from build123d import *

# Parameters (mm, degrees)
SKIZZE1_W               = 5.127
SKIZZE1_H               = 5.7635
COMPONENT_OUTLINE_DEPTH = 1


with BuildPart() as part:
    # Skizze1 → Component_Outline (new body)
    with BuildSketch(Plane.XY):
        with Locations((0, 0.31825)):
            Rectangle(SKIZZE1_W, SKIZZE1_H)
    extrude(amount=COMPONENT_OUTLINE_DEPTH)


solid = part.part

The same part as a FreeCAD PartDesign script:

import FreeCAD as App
import Part
import Sketcher
from FreeCAD import Vector

doc = App.newDocument("Part")
params = doc.addObject("Spreadsheet::Sheet", "Params")
for row, (alias, value) in enumerate([
    ("pad1_length", "1 mm"),
], start=1):
    params.set(f"A{row}", alias)
    params.set(f"B{row}", "=" + value)
    params.setAlias(f"B{row}", alias)

body = doc.addObject("PartDesign::Body", "Body")

sketch1 = body.newObject("Sketcher::SketchObject", "Sketch")
sketch1.AttachmentSupport = (doc.getObject("XY_Plane"), [""])
sketch1.MapMode = "FlatFace"
sketch1.addGeometry(Part.LineSegment(Vector(-2.5635, 3.2, 0), Vector(-2.5635, -2.5635, 0)), False)
sketch1.addGeometry(Part.LineSegment(Vector(-2.5635, -2.5635, 0), Vector(2.5635, -2.5635, 0)), False)
sketch1.addGeometry(Part.LineSegment(Vector(2.5635, -2.5635, 0), Vector(2.5635, 3.2, 0)), False)
sketch1.addGeometry(Part.LineSegment(Vector(2.5635, 3.2, 0), Vector(-2.5635, 3.2, 0)), False)
sketch1.addConstraint(Sketcher.Constraint("Coincident", 0, 2, 1, 1))
sketch1.addConstraint(Sketcher.Constraint("Coincident", 1, 2, 2, 1))
sketch1.addConstraint(Sketcher.Constraint("Coincident", 2, 2, 3, 1))
sketch1.addConstraint(Sketcher.Constraint("Coincident", 3, 2, 0, 1))
sketch1.addConstraint(Sketcher.Constraint("Vertical", 0))
sketch1.addConstraint(Sketcher.Constraint("Horizontal", 1))
sketch1.addConstraint(Sketcher.Constraint("Vertical", 2))
sketch1.addConstraint(Sketcher.Constraint("Horizontal", 3))
sketch1.addConstraint(Sketcher.Constraint("DistanceY", -1, 1, 2, 2, 3.2))
sketch1.addConstraint(Sketcher.Constraint("DistanceX", 1, 1, 1, 2, 5.127))
sketch1.addConstraint(Sketcher.Constraint("DistanceY", 0, 2, 0, 1, 5.7635))
sketch1.addConstraint(Sketcher.Constraint("DistanceX", 0, 2, -1, 1, 2.5635))
pad1 = body.newObject("PartDesign::Pad", "Pad")
pad1.Profile = sketch1
pad1.setExpression("Length", "Params.pad1_length")

doc.recompute()
